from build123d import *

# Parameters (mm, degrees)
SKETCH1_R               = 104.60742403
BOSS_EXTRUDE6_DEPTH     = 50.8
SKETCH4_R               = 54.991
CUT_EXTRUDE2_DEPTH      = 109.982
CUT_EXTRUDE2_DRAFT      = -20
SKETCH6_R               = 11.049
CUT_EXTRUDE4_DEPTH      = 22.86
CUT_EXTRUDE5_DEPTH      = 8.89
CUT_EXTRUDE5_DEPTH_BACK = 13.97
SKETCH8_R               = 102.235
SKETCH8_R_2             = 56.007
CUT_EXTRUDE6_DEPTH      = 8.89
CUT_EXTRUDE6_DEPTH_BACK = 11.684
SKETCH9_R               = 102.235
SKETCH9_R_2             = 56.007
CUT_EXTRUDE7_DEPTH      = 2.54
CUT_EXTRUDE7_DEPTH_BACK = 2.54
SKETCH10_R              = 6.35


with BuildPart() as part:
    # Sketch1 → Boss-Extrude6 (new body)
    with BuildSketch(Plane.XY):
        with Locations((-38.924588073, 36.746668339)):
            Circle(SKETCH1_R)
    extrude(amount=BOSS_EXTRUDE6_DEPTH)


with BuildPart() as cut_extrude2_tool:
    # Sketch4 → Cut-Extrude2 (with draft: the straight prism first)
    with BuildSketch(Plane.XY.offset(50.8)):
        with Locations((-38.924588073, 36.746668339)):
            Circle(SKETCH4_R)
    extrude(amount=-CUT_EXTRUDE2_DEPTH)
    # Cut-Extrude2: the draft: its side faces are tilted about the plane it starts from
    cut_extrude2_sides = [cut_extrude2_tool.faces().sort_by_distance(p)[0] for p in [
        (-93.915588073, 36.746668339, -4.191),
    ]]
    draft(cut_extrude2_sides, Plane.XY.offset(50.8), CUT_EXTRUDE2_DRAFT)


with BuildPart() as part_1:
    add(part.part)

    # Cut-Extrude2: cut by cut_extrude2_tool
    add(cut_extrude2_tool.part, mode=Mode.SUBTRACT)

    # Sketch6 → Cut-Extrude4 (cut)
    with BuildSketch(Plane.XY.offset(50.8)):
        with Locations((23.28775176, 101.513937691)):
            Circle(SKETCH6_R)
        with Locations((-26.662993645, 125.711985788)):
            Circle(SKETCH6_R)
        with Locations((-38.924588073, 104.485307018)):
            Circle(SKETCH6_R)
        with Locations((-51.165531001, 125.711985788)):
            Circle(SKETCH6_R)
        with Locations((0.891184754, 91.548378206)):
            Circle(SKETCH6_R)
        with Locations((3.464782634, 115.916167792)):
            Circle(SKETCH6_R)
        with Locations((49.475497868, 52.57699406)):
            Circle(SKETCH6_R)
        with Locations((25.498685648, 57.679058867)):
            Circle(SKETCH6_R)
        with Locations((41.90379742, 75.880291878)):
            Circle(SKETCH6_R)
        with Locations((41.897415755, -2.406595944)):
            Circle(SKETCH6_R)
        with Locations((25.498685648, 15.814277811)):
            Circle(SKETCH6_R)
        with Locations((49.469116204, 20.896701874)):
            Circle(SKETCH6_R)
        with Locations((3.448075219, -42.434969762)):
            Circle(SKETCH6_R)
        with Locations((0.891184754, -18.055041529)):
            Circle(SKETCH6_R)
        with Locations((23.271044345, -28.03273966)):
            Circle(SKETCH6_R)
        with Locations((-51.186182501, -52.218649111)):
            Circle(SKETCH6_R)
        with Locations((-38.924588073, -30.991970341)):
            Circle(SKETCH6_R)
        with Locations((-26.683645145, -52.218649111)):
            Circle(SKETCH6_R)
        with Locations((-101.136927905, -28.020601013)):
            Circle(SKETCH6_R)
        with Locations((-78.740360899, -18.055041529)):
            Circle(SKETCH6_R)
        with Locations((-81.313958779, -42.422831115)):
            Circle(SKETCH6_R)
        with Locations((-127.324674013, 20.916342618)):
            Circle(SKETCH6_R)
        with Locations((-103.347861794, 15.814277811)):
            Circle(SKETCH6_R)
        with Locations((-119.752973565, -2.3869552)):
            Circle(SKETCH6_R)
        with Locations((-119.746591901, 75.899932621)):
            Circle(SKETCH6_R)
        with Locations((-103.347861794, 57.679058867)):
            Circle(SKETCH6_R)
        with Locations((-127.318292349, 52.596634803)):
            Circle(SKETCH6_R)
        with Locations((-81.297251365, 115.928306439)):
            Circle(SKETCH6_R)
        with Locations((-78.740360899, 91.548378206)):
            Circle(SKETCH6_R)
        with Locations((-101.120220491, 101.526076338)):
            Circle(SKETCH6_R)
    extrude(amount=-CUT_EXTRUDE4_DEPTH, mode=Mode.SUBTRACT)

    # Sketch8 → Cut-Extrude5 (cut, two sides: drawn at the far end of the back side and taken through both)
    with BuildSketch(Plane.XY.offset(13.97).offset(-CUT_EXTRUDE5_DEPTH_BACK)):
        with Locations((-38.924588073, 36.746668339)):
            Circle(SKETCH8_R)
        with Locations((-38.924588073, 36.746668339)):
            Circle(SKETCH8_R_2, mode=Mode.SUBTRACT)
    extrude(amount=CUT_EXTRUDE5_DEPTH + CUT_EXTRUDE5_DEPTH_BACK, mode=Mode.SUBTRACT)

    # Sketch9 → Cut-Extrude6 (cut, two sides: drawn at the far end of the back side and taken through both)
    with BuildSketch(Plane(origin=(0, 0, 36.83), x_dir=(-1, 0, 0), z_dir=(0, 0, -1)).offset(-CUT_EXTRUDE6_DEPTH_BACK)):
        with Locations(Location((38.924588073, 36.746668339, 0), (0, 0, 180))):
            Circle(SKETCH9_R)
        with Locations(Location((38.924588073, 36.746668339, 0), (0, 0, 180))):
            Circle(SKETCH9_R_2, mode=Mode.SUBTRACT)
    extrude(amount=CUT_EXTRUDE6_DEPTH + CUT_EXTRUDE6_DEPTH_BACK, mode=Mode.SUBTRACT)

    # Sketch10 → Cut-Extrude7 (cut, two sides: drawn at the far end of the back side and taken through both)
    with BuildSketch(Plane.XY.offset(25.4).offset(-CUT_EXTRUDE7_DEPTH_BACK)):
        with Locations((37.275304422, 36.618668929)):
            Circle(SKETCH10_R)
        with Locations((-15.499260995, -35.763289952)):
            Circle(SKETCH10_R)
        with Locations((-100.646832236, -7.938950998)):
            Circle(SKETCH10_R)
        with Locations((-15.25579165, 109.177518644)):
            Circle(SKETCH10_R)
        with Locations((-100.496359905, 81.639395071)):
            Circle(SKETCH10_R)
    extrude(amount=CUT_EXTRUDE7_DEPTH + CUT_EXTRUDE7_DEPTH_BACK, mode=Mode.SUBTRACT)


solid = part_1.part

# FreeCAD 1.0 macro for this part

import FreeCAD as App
import Part
import Sketcher

V = App.Vector
Q = App.Units.Quantity


def faces_at(feature, points):
    """Names of the faces that lie closest to the given points."""
    faces = feature.Shape.Faces
    near = lambda p: min(range(len(faces)), key=lambda i: faces[i].distToShape(Part.Vertex(*p))[0])
    return sorted({f"Face{near(p) + 1}" for p in points})

doc = App.newDocument("Part")
body = doc.addObject("PartDesign::Body", "Body")

# Sketch on XY plane
sketch1 = doc.addObject("Sketcher::SketchObject", "Sketch")
body.addObject(sketch1)
sketch1.AttachmentSupport = (doc.XY_Plane, [""])
sketch1.MapMode = "FlatFace"
sketch1.addGeometry(Part.Circle(V(-38.924588, 36.746668, 0), V(0, 0, 1), 104.607424), False)
sketch1.addConstraint([
    Sketcher.Constraint("Diameter", 0, Q("209.214848 mm")),
    Sketcher.Constraint("DistanceX", 0, 3, -1, 1, Q("38.924588 mm")),
    Sketcher.Constraint("DistanceY", -1, 1, 0, 3, Q("36.746668 mm")),
])
pad1 = doc.addObject("PartDesign::Pad", "Pad")
body.addObject(pad1)
pad1.Profile = sketch1
pad1.Length = Q("2 in")
body2 = doc.addObject("PartDesign::Body", "Body001")

# Sketch on XY plane
sketch2 = doc.addObject("Sketcher::SketchObject", "Sketch001")
body2.addObject(sketch2)
sketch2.AttachmentSupport = (doc.getObject("XY_Plane001"), [""])
sketch2.MapMode = "FlatFace"
sketch2.AttachmentOffset = App.Placement(V(0, 0, 2 * 25.4), App.Rotation())
sketch2.addGeometry(Part.Circle(V(-38.924588, 36.746668, 0), V(0, 0, 1), 54.991), False)
sketch2.addConstraint([
    Sketcher.Constraint("Diameter", 0, Q("4.33 in")),
    Sketcher.Constraint("DistanceX", 0, 3, -1, 1, Q("38.924588 mm")),
    Sketcher.Constraint("DistanceY", -1, 1, 0, 3, Q("36.746668 mm")),
])
pad2 = doc.addObject("PartDesign::Pad", "Pad001")
body2.addObject(pad2)
pad2.Profile = sketch2
pad2.Length = Q("4.33 in")
pad2.Reversed = True
doc.recompute()

datumplane = doc.addObject("PartDesign::Plane", "DatumPlane")
body2.addObject(datumplane)
datumplane.AttachmentSupport = (doc.getObject("XY_Plane001"), [""])
datumplane.MapMode = "FlatFace"
datumplane.AttachmentOffset = App.Placement(V(0, 0, 2 * 25.4), App.Rotation())
draft = doc.addObject("PartDesign::Draft", "Draft")
body2.addObject(draft)
draft.Base = (pad2, faces_at(pad2, [(-93.916, 36.747, -4.191)]))
draft.NeutralPlane = (datumplane, [""])
draft.Angle = 20
draft.Reversed = True
doc.recompute()

boolean = doc.addObject("PartDesign::Boolean", "Boolean")
body.addObject(boolean)
boolean.Type = "Cut"
boolean.addObjects([body2])

# Sketch on XY plane
sketch3 = doc.addObject("Sketcher::SketchObject", "Sketch002")
body.addObject(sketch3)
sketch3.AttachmentSupport = (doc.XY_Plane, [""])
sketch3.MapMode = "FlatFace"
sketch3.AttachmentOffset = App.Placement(V(0, 0, 2 * 25.4), App.Rotation())
sketch3.addGeometry([
    Part.Circle(V(23.287752, 101.513938, 0), V(0, 0, 1), 11.049),  # 0
    Part.Circle(V(-26.662994, 125.711986, 0), V(0, 0, 1), 11.049),  # 1
    Part.Circle(V(-38.924588, 104.485307, 0), V(0, 0, 1), 11.049),  # 2
    Part.Circle(V(-51.165531, 125.711986, 0), V(0, 0, 1), 11.049),  # 3
    Part.Circle(V(0.891185, 91.548378, 0), V(0, 0, 1), 11.049),  # 4
    Part.Circle(V(3.464783, 115.916168, 0), V(0, 0, 1), 11.049),  # 5
    Part.Circle(V(49.475498, 52.576994, 0), V(0, 0, 1), 11.049),  # 6
    Part.Circle(V(25.498686, 57.679059, 0), V(0, 0, 1), 11.049),  # 7
    Part.Circle(V(41.903797, 75.880292, 0), V(0, 0, 1), 11.049),  # 8
    Part.Circle(V(41.897416, -2.406596, 0), V(0, 0, 1), 11.049),  # 9
    Part.Circle(V(25.498686, 15.814278, 0), V(0, 0, 1), 11.049),  # 10
    Part.Circle(V(49.469116, 20.896702, 0), V(0, 0, 1), 11.049),  # 11
    Part.Circle(V(3.448075, -42.43497, 0), V(0, 0, 1), 11.049),  # 12
    Part.Circle(V(0.891185, -18.055042, 0), V(0, 0, 1), 11.049),  # 13
    Part.Circle(V(23.271044, -28.03274, 0), V(0, 0, 1), 11.049),  # 14
    Part.Circle(V(-51.186183, -52.218649, 0), V(0, 0, 1), 11.049),  # 15
    Part.Circle(V(-38.924588, -30.99197, 0), V(0, 0, 1), 11.049),  # 16
    Part.Circle(V(-26.683645, -52.218649, 0), V(0, 0, 1), 11.049),  # 17
    Part.Circle(V(-101.136928, -28.020601, 0), V(0, 0, 1), 11.049),  # 18
    Part.Circle(V(-78.740361, -18.055042, 0), V(0, 0, 1), 11.049),  # 19
    Part.Circle(V(-81.313959, -42.422831, 0), V(0, 0, 1), 11.049),  # 20
    Part.Circle(V(-127.324674, 20.916343, 0), V(0, 0, 1), 11.049),  # 21
    Part.Circle(V(-103.347862, 15.814278, 0), V(0, 0, 1), 11.049),  # 22
    Part.Circle(V(-119.752974, -2.386955, 0), V(0, 0, 1), 11.049),  # 23
    Part.Circle(V(-119.746592, 75.899933, 0), V(0, 0, 1), 11.049),  # 24
    Part.Circle(V(-103.347862, 57.679059, 0), V(0, 0, 1), 11.049),  # 25
    Part.Circle(V(-127.318292, 52.596635, 0), V(0, 0, 1), 11.049),  # 26
    Part.Circle(V(-81.297251, 115.928306, 0), V(0, 0, 1), 11.049),  # 27
    Part.Circle(V(-78.740361, 91.548378, 0), V(0, 0, 1), 11.049),  # 28
    Part.Circle(V(-101.12022, 101.526076, 0), V(0, 0, 1), 11.049),  # 29
], False)
sketch3.addConstraint([
    Sketcher.Constraint("Equal", 0, 1),
    Sketcher.Constraint("Equal", 1, 2),
    Sketcher.Constraint("Equal", 2, 3),
    Sketcher.Constraint("Equal", 3, 4),
    Sketcher.Constraint("Equal", 4, 5),
    Sketcher.Constraint("Equal", 5, 6),
    Sketcher.Constraint("Equal", 6, 7),
    Sketcher.Constraint("Equal", 7, 8),
    Sketcher.Constraint("Equal", 8, 9),
    Sketcher.Constraint("Equal", 9, 10),
    Sketcher.Constraint("Equal", 10, 11),
    Sketcher.Constraint("Equal", 11, 12),
    Sketcher.Constraint("Equal", 12, 13),
    Sketcher.Constraint("Equal", 13, 14),
    Sketcher.Constraint("Equal", 14, 15),
    Sketcher.Constraint("Equal", 15, 16),
    Sketcher.Constraint("Equal", 16, 17),
    Sketcher.Constraint("Equal", 17, 18),
    Sketcher.Constraint("Equal", 18, 19),
    Sketcher.Constraint("Equal", 19, 20),
    Sketcher.Constraint("Equal", 20, 21),
    Sketcher.Constraint("Equal", 21, 22),
    Sketcher.Constraint("Equal", 22, 23),
    Sketcher.Constraint("Equal", 23, 24),
    Sketcher.Constraint("Equal", 24, 25),
    Sketcher.Constraint("Equal", 25, 26),
    Sketcher.Constraint("Equal", 26, 27),
    Sketcher.Constraint("Equal", 27, 28),
    Sketcher.Constraint("Equal", 28, 29),
    Sketcher.Constraint("Horizontal", 1, 3, 3, 3),
    Sketcher.Constraint("Horizontal", 15, 3, 17, 3),
    Sketcher.Constraint("Horizontal", 13, 3, 19, 3),
    Sketcher.Constraint("Horizontal", 10, 3, 22, 3),
    Sketcher.Constraint("Horizontal", 7, 3, 25, 3),
    Sketcher.Constraint("Horizontal", 4, 3, 28, 3),
    Sketcher.Constraint("Vertical", 7, 3, 10, 3),
    Sketcher.Constraint("Vertical", 4, 3, 13, 3),
    Sketcher.Constraint("Vertical", 2, 3, 16, 3),
    Sketcher.Constraint("Vertical", 22, 3, 25, 3),
    Sketcher.Constraint("Vertical", 19, 3, 28, 3),
    Sketcher.Constraint("Diameter", 0, Q("0.87 in")),
    Sketcher.Constraint("DistanceY", -1, 1, 11, 3, Q("20.896702 mm")),
    Sketcher.Constraint("DistanceY", 18, 3, -1, 1, Q("28.020601 mm")),
    Sketcher.Constraint("DistanceX", 4, 3, 7, 3, Q("24.607501 mm")),
    Sketcher.Constraint("DistanceX", 8, 3, 6, 3, Q("7.5717 mm")),
    Sketcher.Constraint("DistanceY", 10, 3, 4, 3, Q("75.7341 mm")),
    Sketcher.Constraint("DistanceX", 9, 3, 11, 3, Q("7.5717 mm")),
    Sketcher.Constraint("DistanceY", 13, 3, 7, 3, Q("75.7341 mm")),
    Sketcher.Constraint("DistanceY", 14, 3, 13, 3, Q("9.977698 mm")),
    Sketcher.Constraint("DistanceX", 15, 3, 9, 3, Q("93.083598 mm")),
    Sketcher.Constraint("DistanceY", 12, 3, 16, 3, Q("11.442999 mm")),
    Sketcher.Constraint("DistanceX", 22, 3, 19, 3, Q("24.607501 mm")),
    Sketcher.Constraint("DistanceX", 21, 3, 23, 3, Q("7.5717 mm")),
    Sketcher.Constraint("DistanceX", 26, 3, 24, 3, Q("7.5717 mm")),
    Sketcher.Constraint("DistanceY", 2, 3, 27, 3, Q("11.442999 mm")),
    Sketcher.Constraint("DistanceY", 28, 3, 29, 3, Q("9.977698 mm")),
    Sketcher.Constraint("DistanceX", -1, 1, 0, 3, Q("23.287752 mm")),
    Sketcher.Constraint("DistanceX", 2, 3, -1, 1, Q("38.924588 mm")),
    Sketcher.Constraint("DistanceX", 3, 3, -1, 1, Q("51.165531 mm")),
    Sketcher.Constraint("DistanceY", -1, 1, 4, 3, Q("91.548378 mm")),
    Sketcher.Constraint("DistanceY", -1, 1, 7, 3, Q("57.679059 mm")),
    Sketcher.Constraint("DistanceY", -1, 1, 8, 3, Q("75.880292 mm")),
    Sketcher.Constraint("DistanceY", 12, 3, -1, 1, Q("42.43497 mm")),
    Sketcher.Constraint("DistanceY", 15, 3, -1, 1, Q("52.218649 mm")),
    Sketcher.Constraint("DistanceX", 19, 3, -1, 1, Q("78.740361 mm")),
    Sketcher.Constraint("DistanceX", 20, 3, -1, 1, Q("81.313959 mm")),
    Sketcher.Constraint("DistanceY", 20, 3, -1, 1, Q("42.422831 mm")),
    Sketcher.Constraint("DistanceX", 24, 3, -1, 1, Q("119.746592 mm")),
    Sketcher.Constraint("DistanceX", 27, 3, -1, 1, Q("81.297251 mm")),
    Sketcher.Constraint("DistanceX", 29, 3, -1, 1, Q("101.12022 mm")),
    Sketcher.Constraint("DistanceY", 0, 3, 1, 3, Q("24.198048 mm")),
    Sketcher.Constraint("DistanceY", 2, 3, 1, 3, Q("21.226679 mm")),
    Sketcher.Constraint("DistanceY", 4, 3, 0, 3, Q("9.965559 mm")),
    Sketcher.Constraint("DistanceX", 1, 3, 4, 3, Q("27.554178 mm")),
    Sketcher.Constraint("DistanceX", 5, 3, 0, 3, Q("19.822969 mm")),
    Sketcher.Constraint("DistanceY", 0, 3, 5, 3, Q("14.40223 mm")),
    Sketcher.Constraint("DistanceX", 1, 3, 6, 3, Q("76.138492 mm")),
    Sketcher.Constraint("DistanceY", 6, 3, 1, 3, Q("73.134992 mm")),
    Sketcher.Constraint("DistanceY", 9, 3, 6, 3, Q("54.98359 mm")),
    Sketcher.Constraint("DistanceX", 7, 3, 9, 3, Q("16.39873 mm")),
    Sketcher.Constraint("DistanceX", 12, 3, 9, 3, Q("38.449341 mm")),
    Sketcher.Constraint("DistanceX", 12, 3, 14, 3, Q("19.822969 mm")),
    Sketcher.Constraint("DistanceX", 17, 3, 12, 3, Q("30.13172 mm")),
    Sketcher.Constraint("DistanceX", 18, 3, 16, 3, Q("62.21234 mm")),
    Sketcher.Constraint("DistanceX", 19, 3, 15, 3, Q("27.554178 mm")),
    Sketcher.Constraint("DistanceX", 21, 3, 15, 3, Q("76.138492 mm")),
    Sketcher.Constraint("DistanceY", 15, 3, 21, 3, Q("73.134992 mm")),
    Sketcher.Constraint("DistanceY", 21, 3, 24, 3, Q("54.98359 mm")),
    Sketcher.Constraint("DistanceY", 23, 3, 26, 3, Q("54.98359 mm")),
    Sketcher.Constraint("DistanceY", 23, 3, -1, 1, Q("2.386955 mm")),
])
pocket1 = doc.addObject("PartDesign::Pocket", "Pocket")
body.addObject(pocket1)
pocket1.Profile = sketch3
pocket1.Length = Q("0.9 in")

# Sketch on XY plane
sketch4 = doc.addObject("Sketcher::SketchObject", "Sketch003")
body.addObject(sketch4)
sketch4.AttachmentSupport = (doc.XY_Plane, [""])
sketch4.MapMode = "FlatFace"
sketch4.AttachmentOffset = App.Placement(V(0, 0, 0.55 * 25.4), App.Rotation())
sketch4.addGeometry([
    Part.Circle(V(-38.924588, 36.746668, 0), V(0, 0, 1), 102.235),
    Part.Circle(V(-38.924588, 36.746668, 0), V(0, 0, 1), 56.007),
], False)
sketch4.addConstraint([
    Sketcher.Constraint("Coincident", 1, 3, 0, 3),
    Sketcher.Constraint("Diameter", 0, Q("8.05 in")),
    Sketcher.Constraint("Diameter", 1, Q("4.41 in")),
    Sketcher.Constraint("DistanceX", 0, 3, -1, 1, Q("38.924588 mm")),
    Sketcher.Constraint("DistanceY", -1, 1, 0, 3, Q("36.746668 mm")),
])
pocket2 = doc.addObject("PartDesign::Pocket", "Pocket001")
body.addObject(pocket2)
pocket2.Profile = sketch4
pocket2.Type = "TwoLengths"
pocket2.Length = Q("0.35 in")
pocket2.Length2 = Q("0.55 in")
pocket2.Reversed = True

# Sketch on XY plane
sketch5 = doc.addObject("Sketcher::SketchObject", "Sketch004")
body.addObject(sketch5)
sketch5.AttachmentSupport = (doc.XY_Plane, [""])
sketch5.MapMode = "FlatFace"
sketch5.AttachmentOffset = App.Placement(V(0, 0, 1.45 * 25.4), App.Rotation())
sketch5.addGeometry([
    Part.Circle(V(-38.924588, 36.746668, 0), V(0, 0, 1), 102.235),
    Part.Circle(V(-38.924588, 36.746668, 0), V(0, 0, 1), 56.007),
], False)
sketch5.addConstraint([
    Sketcher.Constraint("Coincident", 1, 3, 0, 3),
    Sketcher.Constraint("Diameter", 0, Q("8.05 in")),
    Sketcher.Constraint("Diameter", 1, Q("4.41 in")),
    Sketcher.Constraint("DistanceX", 0, 3, -1, 1, Q("38.924588 mm")),
    Sketcher.Constraint("DistanceY", -1, 1, 0, 3, Q("36.746668 mm")),
])
pocket3 = doc.addObject("PartDesign::Pocket", "Pocket002")
body.addObject(pocket3)
pocket3.Profile = sketch5
pocket3.Type = "TwoLengths"
pocket3.Length = Q("0.35 in")
pocket3.Length2 = Q("0.46 in")

# Sketch on XY plane
sketch6 = doc.addObject("Sketcher::SketchObject", "Sketch005")
body.addObject(sketch6)
sketch6.AttachmentSupport = (doc.XY_Plane, [""])
sketch6.MapMode = "FlatFace"
sketch6.AttachmentOffset = App.Placement(V(0, 0, 1 * 25.4), App.Rotation())
sketch6.addGeometry([
    Part.Circle(V(37.275304, 36.618669, 0), V(0, 0, 1), 6.35),  # 0
    Part.Circle(V(-15.499261, -35.76329, 0), V(0, 0, 1), 6.35),  # 1
    Part.Circle(V(-100.646832, -7.938951, 0), V(0, 0, 1), 6.35),  # 2
    Part.Circle(V(-15.255792, 109.177519, 0), V(0, 0, 1), 6.35),  # 3
    Part.Circle(V(-100.49636, 81.639395, 0), V(0, 0, 1), 6.35),  # 4
], False)
sketch6.addConstraint([
    Sketcher.Constraint("Equal", 0, 1),
    Sketcher.Constraint("Equal", 1, 2),
    Sketcher.Constraint("Equal", 2, 3),
    Sketcher.Constraint("Equal", 3, 4),
    Sketcher.Constraint("Diameter", 0, Q("0.5 in")),
    Sketcher.Constraint("DistanceX", 4, 3, 1, 3, Q("84.997099 mm")),
    Sketcher.Constraint("DistanceY", -1, 1, 0, 3, Q("36.618669 mm")),
    Sketcher.Constraint("DistanceX", 1, 3, -1, 1, Q("15.499261 mm")),
    Sketcher.Constraint("DistanceY", 1, 3, -1, 1, Q("35.76329 mm")),
    Sketcher.Constraint("DistanceY", 2, 3, -1, 1, Q("7.938951 mm")),
    Sketcher.Constraint("DistanceX", 3, 3, -1, 1, Q("15.255792 mm")),
    Sketcher.Constraint("DistanceY", -1, 1, 3, 3, Q("109.177519 mm")),
    Sketcher.Constraint("DistanceX", 2, 3, 1, 3, Q("85.147571 mm")),
    Sketcher.Constraint("DistanceX", -1, 1, 0, 3, Q("37.275304 mm")),
    Sketcher.Constraint("DistanceY", -1, 1, 4, 3, Q("81.639395 mm")),
])
pocket4 = doc.addObject("PartDesign::Pocket", "Pocket003")
body.addObject(pocket4)
pocket4.Profile = sketch6
pocket4.Type = "TwoLengths"
pocket4.Length = Q("0.1 in")
pocket4.Length2 = Q("0.1 in")
pocket4.Reversed = True

doc.recompute()
